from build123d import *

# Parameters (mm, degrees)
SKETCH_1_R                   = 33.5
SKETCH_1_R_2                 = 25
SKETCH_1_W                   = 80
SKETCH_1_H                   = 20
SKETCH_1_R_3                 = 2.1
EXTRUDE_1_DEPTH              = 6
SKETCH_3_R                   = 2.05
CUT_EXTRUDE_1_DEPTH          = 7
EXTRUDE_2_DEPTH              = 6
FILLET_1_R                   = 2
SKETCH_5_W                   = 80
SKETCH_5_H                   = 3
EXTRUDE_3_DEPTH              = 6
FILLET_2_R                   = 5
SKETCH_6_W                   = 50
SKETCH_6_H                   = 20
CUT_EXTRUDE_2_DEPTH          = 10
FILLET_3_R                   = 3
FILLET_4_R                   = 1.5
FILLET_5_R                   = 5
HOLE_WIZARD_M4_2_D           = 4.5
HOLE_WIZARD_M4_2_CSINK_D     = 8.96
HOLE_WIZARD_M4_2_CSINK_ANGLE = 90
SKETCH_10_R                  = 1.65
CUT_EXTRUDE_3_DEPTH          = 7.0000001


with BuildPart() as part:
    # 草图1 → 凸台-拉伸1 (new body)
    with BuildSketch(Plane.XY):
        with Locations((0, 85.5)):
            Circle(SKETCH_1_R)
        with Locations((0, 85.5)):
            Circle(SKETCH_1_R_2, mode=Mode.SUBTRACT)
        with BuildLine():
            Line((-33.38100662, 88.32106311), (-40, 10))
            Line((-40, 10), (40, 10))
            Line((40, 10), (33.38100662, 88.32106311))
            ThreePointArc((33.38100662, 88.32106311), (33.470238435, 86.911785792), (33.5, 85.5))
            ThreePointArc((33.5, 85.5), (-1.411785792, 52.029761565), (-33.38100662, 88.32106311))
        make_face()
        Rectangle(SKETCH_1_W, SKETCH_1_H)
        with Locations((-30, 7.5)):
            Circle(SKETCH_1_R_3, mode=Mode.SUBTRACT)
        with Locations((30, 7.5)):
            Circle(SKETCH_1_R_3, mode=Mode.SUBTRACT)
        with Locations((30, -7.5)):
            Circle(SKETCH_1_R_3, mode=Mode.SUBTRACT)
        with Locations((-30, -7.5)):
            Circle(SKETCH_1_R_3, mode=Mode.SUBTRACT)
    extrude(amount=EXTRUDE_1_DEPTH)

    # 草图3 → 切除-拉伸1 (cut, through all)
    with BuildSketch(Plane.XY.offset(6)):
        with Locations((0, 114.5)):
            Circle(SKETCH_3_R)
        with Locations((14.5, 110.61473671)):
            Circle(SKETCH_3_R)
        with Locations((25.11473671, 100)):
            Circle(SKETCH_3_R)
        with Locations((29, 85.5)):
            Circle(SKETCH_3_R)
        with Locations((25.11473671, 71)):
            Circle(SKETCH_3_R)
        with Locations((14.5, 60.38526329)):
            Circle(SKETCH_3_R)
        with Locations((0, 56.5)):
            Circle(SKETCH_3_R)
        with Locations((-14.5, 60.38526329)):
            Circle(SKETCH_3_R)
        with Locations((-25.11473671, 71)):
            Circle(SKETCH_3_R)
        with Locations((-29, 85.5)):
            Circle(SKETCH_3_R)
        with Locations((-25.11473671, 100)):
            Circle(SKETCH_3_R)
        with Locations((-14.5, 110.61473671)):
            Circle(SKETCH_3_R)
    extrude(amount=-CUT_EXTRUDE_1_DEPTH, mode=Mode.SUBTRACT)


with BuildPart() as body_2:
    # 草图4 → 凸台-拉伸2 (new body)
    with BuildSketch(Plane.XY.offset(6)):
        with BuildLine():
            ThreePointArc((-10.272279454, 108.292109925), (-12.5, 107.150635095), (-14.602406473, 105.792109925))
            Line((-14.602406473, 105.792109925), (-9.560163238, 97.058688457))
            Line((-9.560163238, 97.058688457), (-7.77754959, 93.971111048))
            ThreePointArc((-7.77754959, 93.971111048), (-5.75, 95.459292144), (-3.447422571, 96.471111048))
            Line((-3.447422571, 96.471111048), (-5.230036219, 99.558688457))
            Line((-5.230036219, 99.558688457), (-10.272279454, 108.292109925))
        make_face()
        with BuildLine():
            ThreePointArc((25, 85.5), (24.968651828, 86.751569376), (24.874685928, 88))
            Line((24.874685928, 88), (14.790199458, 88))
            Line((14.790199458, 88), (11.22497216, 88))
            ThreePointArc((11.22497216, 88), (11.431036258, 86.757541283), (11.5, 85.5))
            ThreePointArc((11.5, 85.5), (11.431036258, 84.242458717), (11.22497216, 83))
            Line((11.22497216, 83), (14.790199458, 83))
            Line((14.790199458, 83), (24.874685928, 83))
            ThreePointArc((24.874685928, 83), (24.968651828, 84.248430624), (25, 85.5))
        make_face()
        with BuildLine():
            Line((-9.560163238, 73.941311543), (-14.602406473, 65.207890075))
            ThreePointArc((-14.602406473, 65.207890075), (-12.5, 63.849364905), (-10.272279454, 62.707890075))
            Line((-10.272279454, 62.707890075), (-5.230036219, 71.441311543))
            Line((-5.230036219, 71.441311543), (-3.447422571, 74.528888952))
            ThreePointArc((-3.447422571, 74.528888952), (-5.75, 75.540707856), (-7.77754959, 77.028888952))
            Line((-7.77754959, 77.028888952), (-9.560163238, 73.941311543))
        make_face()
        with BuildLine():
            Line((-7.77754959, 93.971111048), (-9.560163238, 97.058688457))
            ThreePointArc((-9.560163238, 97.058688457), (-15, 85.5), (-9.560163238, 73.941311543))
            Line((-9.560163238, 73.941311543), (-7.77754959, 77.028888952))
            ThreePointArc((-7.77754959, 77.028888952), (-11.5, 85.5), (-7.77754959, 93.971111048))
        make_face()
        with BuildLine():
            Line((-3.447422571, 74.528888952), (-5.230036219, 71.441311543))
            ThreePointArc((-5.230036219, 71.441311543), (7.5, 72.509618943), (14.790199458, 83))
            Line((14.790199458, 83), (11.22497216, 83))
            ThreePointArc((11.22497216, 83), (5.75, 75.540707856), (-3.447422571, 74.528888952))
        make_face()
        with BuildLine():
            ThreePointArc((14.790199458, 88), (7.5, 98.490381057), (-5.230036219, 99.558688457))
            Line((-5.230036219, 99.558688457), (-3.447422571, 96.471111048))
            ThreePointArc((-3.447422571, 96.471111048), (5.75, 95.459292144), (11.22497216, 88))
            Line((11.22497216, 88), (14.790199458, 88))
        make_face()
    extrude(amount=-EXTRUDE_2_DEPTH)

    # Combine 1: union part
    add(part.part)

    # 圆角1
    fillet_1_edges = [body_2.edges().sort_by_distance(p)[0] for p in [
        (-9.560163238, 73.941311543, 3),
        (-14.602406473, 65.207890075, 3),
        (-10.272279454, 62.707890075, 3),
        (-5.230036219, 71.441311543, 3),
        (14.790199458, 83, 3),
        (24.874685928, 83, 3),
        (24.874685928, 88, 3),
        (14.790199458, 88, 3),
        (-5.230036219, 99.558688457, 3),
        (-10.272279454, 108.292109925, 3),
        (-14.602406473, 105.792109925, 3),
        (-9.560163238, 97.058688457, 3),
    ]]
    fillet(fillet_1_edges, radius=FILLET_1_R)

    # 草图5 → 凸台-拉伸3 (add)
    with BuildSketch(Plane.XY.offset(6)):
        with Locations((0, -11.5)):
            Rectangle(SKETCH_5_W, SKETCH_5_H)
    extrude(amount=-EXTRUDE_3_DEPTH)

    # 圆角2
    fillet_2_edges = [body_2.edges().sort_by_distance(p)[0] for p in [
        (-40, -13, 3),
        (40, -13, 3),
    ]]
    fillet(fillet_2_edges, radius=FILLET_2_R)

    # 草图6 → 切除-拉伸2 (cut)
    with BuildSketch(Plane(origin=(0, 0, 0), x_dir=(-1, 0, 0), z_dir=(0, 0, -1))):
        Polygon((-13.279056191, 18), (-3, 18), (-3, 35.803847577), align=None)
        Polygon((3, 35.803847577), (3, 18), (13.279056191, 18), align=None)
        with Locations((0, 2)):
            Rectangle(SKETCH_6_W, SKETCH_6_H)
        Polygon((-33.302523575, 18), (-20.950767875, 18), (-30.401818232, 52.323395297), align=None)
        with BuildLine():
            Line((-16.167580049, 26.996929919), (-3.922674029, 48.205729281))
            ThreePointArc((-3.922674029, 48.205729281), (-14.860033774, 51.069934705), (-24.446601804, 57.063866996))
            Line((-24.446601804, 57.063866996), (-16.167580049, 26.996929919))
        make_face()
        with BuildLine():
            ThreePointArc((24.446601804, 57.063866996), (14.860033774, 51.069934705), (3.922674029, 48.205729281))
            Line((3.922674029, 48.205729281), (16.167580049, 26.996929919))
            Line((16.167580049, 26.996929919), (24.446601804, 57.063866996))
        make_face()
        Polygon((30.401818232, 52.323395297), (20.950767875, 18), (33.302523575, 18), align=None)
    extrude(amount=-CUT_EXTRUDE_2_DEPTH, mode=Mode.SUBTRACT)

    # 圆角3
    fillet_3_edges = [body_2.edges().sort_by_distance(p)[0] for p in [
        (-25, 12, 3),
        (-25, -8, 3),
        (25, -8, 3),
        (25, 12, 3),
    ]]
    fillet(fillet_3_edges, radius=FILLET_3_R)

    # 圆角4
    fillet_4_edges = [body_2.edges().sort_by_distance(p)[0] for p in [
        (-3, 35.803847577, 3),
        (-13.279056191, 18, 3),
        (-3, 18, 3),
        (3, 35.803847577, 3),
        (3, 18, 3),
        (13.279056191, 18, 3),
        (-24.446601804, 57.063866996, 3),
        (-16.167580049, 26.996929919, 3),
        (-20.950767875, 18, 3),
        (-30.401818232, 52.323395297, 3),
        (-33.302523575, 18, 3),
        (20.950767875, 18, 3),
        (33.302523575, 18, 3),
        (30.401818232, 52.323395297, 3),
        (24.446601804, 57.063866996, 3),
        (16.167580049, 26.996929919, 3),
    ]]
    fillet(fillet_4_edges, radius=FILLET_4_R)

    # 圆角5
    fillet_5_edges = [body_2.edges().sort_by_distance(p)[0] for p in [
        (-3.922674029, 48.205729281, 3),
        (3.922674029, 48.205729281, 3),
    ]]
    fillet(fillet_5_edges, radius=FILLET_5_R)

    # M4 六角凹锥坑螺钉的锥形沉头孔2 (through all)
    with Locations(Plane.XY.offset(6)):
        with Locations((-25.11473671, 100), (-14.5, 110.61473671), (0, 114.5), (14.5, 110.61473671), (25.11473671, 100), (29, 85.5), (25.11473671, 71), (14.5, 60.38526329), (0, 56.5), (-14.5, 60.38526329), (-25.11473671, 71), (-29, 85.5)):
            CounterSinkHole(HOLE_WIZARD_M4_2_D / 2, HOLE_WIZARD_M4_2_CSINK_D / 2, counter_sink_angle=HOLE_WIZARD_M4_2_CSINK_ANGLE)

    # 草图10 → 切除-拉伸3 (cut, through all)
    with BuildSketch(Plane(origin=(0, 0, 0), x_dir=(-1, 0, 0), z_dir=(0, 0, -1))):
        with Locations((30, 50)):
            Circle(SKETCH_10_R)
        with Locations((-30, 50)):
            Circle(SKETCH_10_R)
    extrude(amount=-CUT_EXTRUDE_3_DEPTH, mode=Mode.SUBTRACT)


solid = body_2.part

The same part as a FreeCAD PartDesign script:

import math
import FreeCAD as App
import Part
import Sketcher
Q = App.Units.Quantity


def edges_at(feature, points):
    """Names of the edges that pass closest to the given points."""
    edges = feature.Shape.Edges
    near = lambda p: min(range(len(edges)), key=lambda i: edges[i].distToShape(Part.Vertex(*p))[0])
    return sorted({f"Edge{near(p) + 1}" for p in points})

doc = App.newDocument("Part")
body = doc.addObject("PartDesign::Body", "Body")

# Sketch on XY plane
sketch1 = body.newObject("Sketcher::SketchObject", "Sketch")
sketch1.AttachmentSupport = (doc.getObject("XY_Plane"), [""])
sketch1.MapMode = "FlatFace"
sketch1.addGeometry([
    Part.ArcOfCircle(Part.Circle(App.Vector(0, 85.5, 0), App.Vector(0, 0, 1), 33.5), math.radians(5), math.radians(175)),  # 0
    Part.LineSegment(App.Vector(-33.4, 88.3, 0), App.Vector(-40, 10, 0)),  # 1
    Part.LineSegment(App.Vector(-40, 10, 0), App.Vector(-40, -10, 0)),  # 2
    Part.LineSegment(App.Vector(-40, -10, 0), App.Vector(40, -10, 0)),  # 3
    Part.LineSegment(App.Vector(40, -10, 0), App.Vector(40, 10, 0)),  # 4
    Part.LineSegment(App.Vector(40, 10, 0), App.Vector(33.4, 88.3, 0)),  # 5
    Part.Circle(App.Vector(-30, -7.5, 0), App.Vector(0, 0, 1), 2.1),  # 6
    Part.Circle(App.Vector(-30, 7.5, 0), App.Vector(0, 0, 1), 2.1),  # 7
    Part.Circle(App.Vector(30, -7.5, 0), App.Vector(0, 0, 1), 2.1),  # 8
    Part.Circle(App.Vector(30, 7.5, 0), App.Vector(0, 0, 1), 2.1),  # 9
    Part.Circle(App.Vector(0, 85.5, 0), App.Vector(0, 0, 1), 25),  # 10
], False)
sketch1.addConstraint([
    Sketcher.Constraint("Tangent", 0, 2, 1, 1),
    Sketcher.Constraint("Coincident", 1, 2, 2, 1),
    Sketcher.Constraint("Coincident", 2, 2, 3, 1),
    Sketcher.Constraint("Coincident", 3, 2, 4, 1),
    Sketcher.Constraint("Coincident", 4, 2, 5, 1),
    Sketcher.Constraint("Tangent", 5, 2, 0, 1),
    Sketcher.Constraint("Vertical", 2),
    Sketcher.Constraint("Horizontal", 3),
    Sketcher.Constraint("Vertical", 4),
    Sketcher.Constraint("Coincident", 10, 3, 0, 3),
    Sketcher.Constraint("Equal", 6, 7),
    Sketcher.Constraint("Equal", 7, 8),
    Sketcher.Constraint("Equal", 8, 9),
    Sketcher.Constraint("Symmetric", 7, 3, 8, 3, -1, 1),
    Sketcher.Constraint("Symmetric", 6, 3, 9, 3, -1, 1),
    Sketcher.Constraint("Symmetric", 1, 2, 3, 2, -1, 1),
    Sketcher.Constraint("Symmetric", 6, 3, 8, 3, -2),
    Sketcher.Constraint("PointOnObject", 0, 3, -2),
    Sketcher.Constraint("Horizontal", 1, 2, 4, 2),
    Sketcher.Constraint("Diameter", 10, 50.0),
    Sketcher.Constraint("Diameter", 6, 4.2),
    Sketcher.Constraint("Radius", 0, 33.5),
    Sketcher.Constraint("DistanceX", 3, 1, 3, 2, 80.0),
    Sketcher.Constraint("DistanceY", 2, 2, 2, 1, 20.0),
    Sketcher.Constraint("DistanceX", 6, 3, -1, 1, 30.0),
    Sketcher.Constraint("DistanceY", 6, 3, 0, 3, 93.0),
    Sketcher.Constraint("DistanceY", 6, 3, 7, 3, 15.0),
])
pad1 = body.newObject("PartDesign::Pad", "Pad")
pad1.Profile = sketch1
pad1.Length = 6

# Sketch on XY plane
sketch2 = body.newObject("Sketcher::SketchObject", "Sketch001")
sketch2.AttachmentSupport = (doc.getObject("XY_Plane"), [""])
sketch2.MapMode = "FlatFace"
sketch2.AttachmentOffset = App.Placement(App.Vector(0, 0, 6), App.Rotation())
sketch2.addGeometry([
    Part.Circle(App.Vector(0, 114.5, 0), App.Vector(0, 0, 1), 2),  # 0
    Part.Circle(App.Vector(14.5, 110.6, 0), App.Vector(0, 0, 1), 2),  # 1
    Part.Circle(App.Vector(25.1, 100, 0), App.Vector(0, 0, 1), 2),  # 2
    Part.Circle(App.Vector(29, 85.5, 0), App.Vector(0, 0, 1), 2),  # 3
    Part.Circle(App.Vector(25.1, 71, 0), App.Vector(0, 0, 1), 2),  # 4
    Part.Circle(App.Vector(14.5, 60.4, 0), App.Vector(0, 0, 1), 2),  # 5
    Part.Circle(App.Vector(0, 56.5, 0), App.Vector(0, 0, 1), 2),  # 6
    Part.Circle(App.Vector(-14.5, 60.4, 0), App.Vector(0, 0, 1), 2),  # 7
    Part.Circle(App.Vector(-25.1, 71, 0), App.Vector(0, 0, 1), 2),  # 8
    Part.Circle(App.Vector(-29, 85.5, 0), App.Vector(0, 0, 1), 2),  # 9
    Part.Circle(App.Vector(-25.1, 100, 0), App.Vector(0, 0, 1), 2),  # 10
    Part.Circle(App.Vector(-14.5, 110.6, 0), App.Vector(0, 0, 1), 2),  # 11
], False)
sketch2.addConstraint([
    Sketcher.Constraint("Equal", 0, 1),
    Sketcher.Constraint("Equal", 1, 2),
    Sketcher.Constraint("Equal", 2, 3),
    Sketcher.Constraint("Equal", 3, 4),
    Sketcher.Constraint("Equal", 4, 5),
    Sketcher.Constraint("Equal", 5, 6),
    Sketcher.Constraint("Equal", 6, 7),
    Sketcher.Constraint("Equal", 7, 8),
    Sketcher.Constraint("Equal", 8, 9),
    Sketcher.Constraint("Equal", 9, 10),
    Sketcher.Constraint("Equal", 10, 11),
    Sketcher.Constraint("Symmetric", 5, 3, 7, 3, -2),
    Sketcher.Constraint("Symmetric", 4, 3, 8, 3, -2),
    Sketcher.Constraint("Symmetric", 3, 3, 9, 3, -2),
    Sketcher.Constraint("Symmetric", 2, 3, 10, 3, -2),
    Sketcher.Constraint("Symmetric", 1, 3, 11, 3, -2),
    Sketcher.Constraint("PointOnObject", 0, 3, -2),
    Sketcher.Constraint("PointOnObject", 6, 3, -2),
    Sketcher.Constraint("Vertical", 2, 3, 4, 3),
    Sketcher.Constraint("Vertical", 1, 3, 5, 3),
    Sketcher.Constraint("Diameter", 0, 4.1),
    Sketcher.Constraint("DistanceY", -1, 1, 2, 3, 100.0),
    Sketcher.Constraint("DistanceX", -1, 1, 3, 3, 29.0),
    Sketcher.Constraint("DistanceY", -1, 1, 4, 3, 71.0),
    Sketcher.Constraint("DistanceY", 3, 3, 0, 3, 29.0),
    Sketcher.Constraint("DistanceY", 6, 3, 3, 3, 29.0),
    Sketcher.Constraint("DistanceX", 7, 3, 5, 3, 29.0),
    Sketcher.Constraint("DistanceY", -1, 1, 0, 3, 114.5),
    Sketcher.Constraint("DistanceY", -1, 1, 1, 3, 110.614737),
    Sketcher.Constraint("DistanceX", -1, 1, 2, 3, 25.114737),
    Sketcher.Constraint("DistanceY", -1, 1, 5, 3, 60.385263),
])
pocket1 = body.newObject("PartDesign::Pocket", "Pocket")
pocket1.Profile = sketch2
pocket1.Type = "ThroughAll"
body2 = doc.addObject("PartDesign::Body", "Body001")

# Sketch on XY plane
sketch3 = body2.newObject("Sketcher::SketchObject", "Sketch002")
sketch3.AttachmentSupport = (doc.getObject("XY_Plane001"), [""])
sketch3.MapMode = "FlatFace"
sketch3.AttachmentOffset = App.Placement(App.Vector(0, 0, 6), App.Rotation())
sketch3.addGeometry([
    Part.ArcOfCircle(Part.Circle(App.Vector(0, 85.5, 0), App.Vector(0, 0, 1), 25), math.radians(114.26), math.radians(125.74)),  # 0
    Part.LineSegment(App.Vector(-14.6, 105.8, 0), App.Vector(-9.6, 97.1, 0)),  # 1
    Part.ArcOfCircle(Part.Circle(App.Vector(0, 85.5, 0), App.Vector(0, 0, 1), 15), math.radians(130), math.radians(230)),  # 2
    Part.LineSegment(App.Vector(-9.6, 73.9, 0), App.Vector(-14.6, 65.2, 0)),  # 3
    Part.ArcOfCircle(Part.Circle(App.Vector(0, 85.5, 0), App.Vector(0, 0, 1), 25), math.radians(-125.74), math.radians(-114.26)),  # 4
    Part.LineSegment(App.Vector(-10.3, 62.7, 0), App.Vector(-5.2, 71.4, 0)),  # 5
    Part.ArcOfCircle(Part.Circle(App.Vector(0, 85.5, 0), App.Vector(0, 0, 1), 15), math.radians(-110), math.radians(-10)),  # 6
    Part.LineSegment(App.Vector(14.8, 83, 0), App.Vector(24.9, 83, 0)),  # 7
    Part.ArcOfCircle(Part.Circle(App.Vector(0, 85.5, 0), App.Vector(0, 0, 1), 25), math.radians(-5.74), math.radians(0)),  # 8
    Part.ArcOfCircle(Part.Circle(App.Vector(0, 85.5, 0), App.Vector(0, 0, 1), 25), math.radians(0), math.radians(5.74)),  # 9
    Part.LineSegment(App.Vector(24.9, 88, 0), App.Vector(14.8, 88, 0)),  # 10
    Part.ArcOfCircle(Part.Circle(App.Vector(0, 85.5, 0), App.Vector(0, 0, 1), 15), math.radians(10), math.radians(110)),  # 11
    Part.LineSegment(App.Vector(-5.2, 99.6, 0), App.Vector(-10.3, 108.3, 0)),  # 12
    Part.ArcOfCircle(Part.Circle(App.Vector(0, 85.5, 0), App.Vector(0, 0, 1), 11.5), math.radians(0), math.radians(12.56)),  # 13
    Part.ArcOfCircle(Part.Circle(App.Vector(0, 85.5, 0), App.Vector(0, 0, 1), 11.5), math.radians(-12.56), math.radians(0)),  # 14
    Part.ArcOfCircle(Part.Circle(App.Vector(0, 85.5, 0), App.Vector(0, 0, 1), 11.5), math.radians(-107), math.radians(-13)),  # 15
    Part.ArcOfCircle(Part.Circle(App.Vector(0, 85.5, 0), App.Vector(0, 0, 1), 11.5), math.radians(-133), math.radians(-107)),  # 16
    Part.ArcOfCircle(Part.Circle(App.Vector(0, 85.5, 0), App.Vector(0, 0, 1), 11.5), math.radians(133), math.radians(227)),  # 17
    Part.ArcOfCircle(Part.Circle(App.Vector(0, 85.5, 0), App.Vector(0, 0, 1), 11.5), math.radians(107), math.radians(133)),  # 18
    Part.ArcOfCircle(Part.Circle(App.Vector(0, 85.5, 0), App.Vector(0, 0, 1), 11.5), math.radians(13), math.radians(107)),  # 19
], False)
sketch3.addConstraint([
    Sketcher.Constraint("Coincident", 0, 2, 1, 1),
    Sketcher.Constraint("Coincident", 1, 2, 2, 1),
    Sketcher.Constraint("Coincident", 2, 2, 3, 1),
    Sketcher.Constraint("Coincident", 3, 2, 4, 1),
    Sketcher.Constraint("Coincident", 4, 2, 5, 1),
    Sketcher.Constraint("Coincident", 5, 2, 6, 1),
    Sketcher.Constraint("Coincident", 6, 2, 7, 1),
    Sketcher.Constraint("Coincident", 7, 2, 8, 1),
    Sketcher.Constraint("Tangent", 8, 2, 9, 1),
    Sketcher.Constraint("Coincident", 9, 2, 10, 1),
    Sketcher.Constraint("Coincident", 10, 2, 11, 1),
    Sketcher.Constraint("Coincident", 11, 2, 12, 1),
    Sketcher.Constraint("Coincident", 12, 2, 0, 1),
    Sketcher.Constraint("Tangent", 13, 1, 14, 2),
    Sketcher.Constraint("Tangent", 14, 1, 15, 2),
    Sketcher.Constraint("Tangent", 15, 1, 16, 2),
    Sketcher.Constraint("Tangent", 16, 1, 17, 2),
    Sketcher.Constraint("Tangent", 17, 1, 18, 2),
    Sketcher.Constraint("Tangent", 18, 1, 19, 2),
    Sketcher.Constraint("Tangent", 19, 1, 13, 2),
    Sketcher.Constraint("Horizontal", 7),
    Sketcher.Constraint("Horizontal", 10),
    Sketcher.Constraint("Coincident", 2, 3, 0, 3),
    Sketcher.Constraint("Coincident", 4, 3, 0, 3),
    Sketcher.Constraint("Coincident", 6, 3, 0, 3),
    Sketcher.Constraint("Coincident", 8, 3, 0, 3),
    Sketcher.Constraint("Coincident", 11, 3, 0, 3),
    Sketcher.Constraint("Coincident", 13, 3, 0, 3),
    Sketcher.Constraint("Coincident", 15, 3, 0, 3),
    Sketcher.Constraint("Coincident", 17, 3, 0, 3),
    Sketcher.Constraint("Equal", 0, 4),
    Sketcher.Constraint("Equal", 2, 6),
    Sketcher.Constraint("Equal", 4, 8),
    Sketcher.Constraint("Equal", 8, 9),
    Sketcher.Constraint("Equal", 6, 11),
    Sketcher.Constraint("PointOnObject", 0, 3, -2),
    Sketcher.Constraint("Parallel", 3, 5),
    Sketcher.Constraint("Parallel", 1, 12),
    Sketcher.Constraint("Horizontal", 19, 3, 8, 2),
    Sketcher.Constraint("Horizontal", 8, 2, 13, 1),
    Sketcher.Constraint("Horizontal", 7, 2, 14, 1),
    Sketcher.Constraint("Horizontal", 10, 2, 19, 1),
    Sketcher.Constraint("Vertical", 1, 2, 2, 2),
    Sketcher.Constraint("Vertical", 0, 2, 3, 2),
    Sketcher.Constraint("Vertical", 7, 2, 9, 2),
    Sketcher.Constraint("Vertical", 5, 2, 11, 2),
    Sketcher.Constraint("Vertical", 16, 1, 17, 1),
    Sketcher.Constraint("Vertical", 15, 1, 18, 1),
    Sketcher.Constraint("Equal", 3, 5),
    Sketcher.Constraint("Radius", 0, 25.0),
    Sketcher.Constraint("Radius", 2, 15.0),
    Sketcher.Constraint("Radius", 13, 11.5),
    Sketcher.Constraint("Angle", 1, Q("-60 deg")),
    Sketcher.Constraint("DistanceY", -1, 1, 6, 2, 83.0),
    Sketcher.Constraint("DistanceY", -1, 1, 9, 2, 88.0),
    Sketcher.Constraint("DistanceY", 4, 2, 3, 2, 2.5),
    Sketcher.Constraint("DistanceY", 15, 1, 16, 1, 2.5),
    Sketcher.Constraint("DistanceY", -1, 1, 15, 1, 74.528889),
])
pad2 = body2.newObject("PartDesign::Pad", "Pad001")
pad2.Profile = sketch3
pad2.Length = 6
pad2.Reversed = True
doc.recompute()

boolean = body2.newObject("PartDesign::Boolean", "Boolean")
boolean.Type = "Fuse"
boolean.addObjects([body])
doc.recompute()

fillet = body2.newObject("PartDesign::Fillet", "Fillet")
fillet.Base = (boolean, edges_at(boolean, [
    (-9.56, 73.941, 3),
    (-14.602, 65.208, 3),
    (-10.272, 62.708, 3),
    (-5.23, 71.441, 3),
    (14.79, 83, 3),
    (24.875, 83, 3),
    (24.875, 88, 3),
    (14.79, 88, 3),
    (-5.23, 99.559, 3),
    (-10.272, 108.292, 3),
    (-14.602, 105.792, 3),
    (-9.56, 97.059, 3),
]))
fillet.Radius = 2

# Sketch on XY plane
sketch4 = body2.newObject("Sketcher::SketchObject", "Sketch003")
sketch4.AttachmentSupport = (doc.getObject("XY_Plane001"), [""])
sketch4.MapMode = "FlatFace"
sketch4.AttachmentOffset = App.Placement(App.Vector(0, 0, 6), App.Rotation())
sketch4.addGeometry([
    Part.LineSegment(App.Vector(-40, -10, 0), App.Vector(-40, -13, 0)),
    Part.LineSegment(App.Vector(-40, -13, 0), App.Vector(40, -13, 0)),
    Part.LineSegment(App.Vector(40, -13, 0), App.Vector(40, -10, 0)),
    Part.LineSegment(App.Vector(40, -10, 0), App.Vector(-40, -10, 0)),
], False)
sketch4.addConstraint([
    Sketcher.Constraint("Coincident", 0, 2, 1, 1),
    Sketcher.Constraint("Coincident", 1, 2, 2, 1),
    Sketcher.Constraint("Coincident", 2, 2, 3, 1),
    Sketcher.Constraint("Coincident", 3, 2, 0, 1),
    Sketcher.Constraint("Vertical", 0),
    Sketcher.Constraint("Horizontal", 1),
    Sketcher.Constraint("Vertical", 2),
    Sketcher.Constraint("Horizontal", 3),
    Sketcher.Constraint("DistanceX", 1, 1, 1, 2, 80.0),
    Sketcher.Constraint("DistanceY", 0, 2, 0, 1, 3.0),
    Sketcher.Constraint("DistanceX", 0, 2, -1, 1, 40.0),
    Sketcher.Constraint("DistanceY", 0, 2, -1, 1, 13.0),
])
pad3 = body2.newObject("PartDesign::Pad", "Pad002")
pad3.Profile = sketch4
pad3.Length = 6
pad3.Reversed = True
doc.recompute()

fillet2 = body2.newObject("PartDesign::Fillet", "Fillet001")
fillet2.Base = (pad3, edges_at(pad3, [(-40, -13, 3), (40, -13, 3)]))
fillet2.Radius = 5

# Sketch on XY plane
sketch5 = body2.newObject("Sketcher::SketchObject", "Sketch004")
sketch5.AttachmentSupport = (doc.getObject("XY_Plane001"), [""])
sketch5.MapMode = "FlatFace"
sketch5.addGeometry([
    Part.LineSegment(App.Vector(13, 18, 0), App.Vector(3, 18, 0)),  # 0
    Part.LineSegment(App.Vector(3, 18, 0), App.Vector(3, 36, 0)),  # 1
    Part.LineSegment(App.Vector(3, 36, 0), App.Vector(13, 18, 0)),  # 2
    Part.LineSegment(App.Vector(-3, 36, 0), App.Vector(-3, 18, 0)),  # 3
    Part.LineSegment(App.Vector(-3, 18, 0), App.Vector(-13, 18, 0)),  # 4
    Part.LineSegment(App.Vector(-13, 18, 0), App.Vector(-3, 36, 0)),  # 5
    Part.LineSegment(App.Vector(25, 12, 0), App.Vector(25, -8, 0)),  # 6
    Part.LineSegment(App.Vector(25, -8, 0), App.Vector(-25, -8, 0)),  # 7
    Part.LineSegment(App.Vector(-25, -8, 0), App.Vector(-25, 12, 0)),  # 8
    Part.LineSegment(App.Vector(-25, 12, 0), App.Vector(25, 12, 0)),  # 9
    Part.LineSegment(App.Vector(33, 18, 0), App.Vector(21, 18, 0)),  # 10
    Part.LineSegment(App.Vector(21, 18, 0), App.Vector(30, 52, 0)),  # 11
    Part.LineSegment(App.Vector(30, 52, 0), App.Vector(33, 18, 0)),  # 12
    Part.LineSegment(App.Vector(16, 27, 0), App.Vector(4, 48, 0)),  # 13
    Part.ArcOfCircle(Part.Circle(App.Vector(0, 86, 0), App.Vector(0, 0, 1), 38), math.radians(-84), math.radians(-49)),  # 14
    Part.LineSegment(App.Vector(24, 57, 0), App.Vector(16, 27, 0)),  # 15
    Part.ArcOfCircle(Part.Circle(App.Vector(0, 86, 0), App.Vector(0, 0, 1), 38), math.radians(-131), math.radians(-96)),  # 16
    Part.LineSegment(App.Vector(-4, 48, 0), App.Vector(-16, 27, 0)),  # 17
    Part.LineSegment(App.Vector(-16, 27, 0), App.Vector(-24, 57, 0)),  # 18
    Part.LineSegment(App.Vector(-30, 52, 0), App.Vector(-21, 18, 0)),  # 19
    Part.LineSegment(App.Vector(-21, 18, 0), App.Vector(-33, 18, 0)),  # 20
    Part.LineSegment(App.Vector(-33, 18, 0), App.Vector(-30, 52, 0)),  # 21
], False)
sketch5.addConstraint([
    Sketcher.Constraint("Coincident", 0, 2, 1, 1),
    Sketcher.Constraint("Coincident", 1, 2, 2, 1),
    Sketcher.Constraint("Coincident", 2, 2, 0, 1),
    Sketcher.Constraint("Coincident", 3, 2, 4, 1),
    Sketcher.Constraint("Coincident", 4, 2, 5, 1),
    Sketcher.Constraint("Coincident", 5, 2, 3, 1),
    Sketcher.Constraint("Coincident", 6, 2, 7, 1),
    Sketcher.Constraint("Coincident", 7, 2, 8, 1),
    Sketcher.Constraint("Coincident", 8, 2, 9, 1),
    Sketcher.Constraint("Coincident", 9, 2, 6, 1),
    Sketcher.Constraint("Coincident", 10, 2, 11, 1),
    Sketcher.Constraint("Coincident", 11, 2, 12, 1),
    Sketcher.Constraint("Coincident", 12, 2, 10, 1),
    Sketcher.Constraint("Coincident", 13, 2, 14, 1),
    Sketcher.Constraint("Coincident", 14, 2, 15, 1),
    Sketcher.Constraint("Coincident", 15, 2, 13, 1),
    Sketcher.Constraint("Coincident", 16, 2, 17, 1),
    Sketcher.Constraint("Coincident", 17, 2, 18, 1),
    Sketcher.Constraint("Coincident", 18, 2, 16, 1),
    Sketcher.Constraint("Coincident", 19, 2, 20, 1),
    Sketcher.Constraint("Coincident", 20, 2, 21, 1),
    Sketcher.Constraint("Coincident", 21, 2, 19, 1),
    Sketcher.Constraint("Horizontal", 0),
    Sketcher.Constraint("Vertical", 1),
    Sketcher.Constraint("Vertical", 3),
    Sketcher.Constraint("Horizontal", 4),
    Sketcher.Constraint("Vertical", 6),
    Sketcher.Constraint("Horizontal", 7),
    Sketcher.Constraint("Vertical", 8),
    Sketcher.Constraint("Horizontal", 9),
    Sketcher.Constraint("Horizontal", 10),
    Sketcher.Constraint("Horizontal", 20),
    Sketcher.Constraint("Coincident", 16, 3, 14, 3),
    Sketcher.Constraint("Equal", 14, 16),
    Sketcher.Constraint("Symmetric", 0, 2, 3, 2, -2),
    Sketcher.Constraint("Symmetric", 13, 2, 16, 2, -2),
    Sketcher.Constraint("Symmetric", 15, 2, 17, 2, -2),
    Sketcher.Constraint("Symmetric", 10, 2, 19, 2, -2),
    Sketcher.Constraint("Symmetric", 11, 2, 21, 2, -2),
    Sketcher.Constraint("Parallel", 2, 13),
    Sketcher.Constraint("Parallel", 11, 15),
    Sketcher.Constraint("Parallel", 5, 17),
    Sketcher.Constraint("Parallel", 18, 19),
    Sketcher.Constraint("Horizontal", 1, 2, 5, 2),
    Sketcher.Constraint("Horizontal", 4, 2, 10, 2),
    Sketcher.Constraint("Equal", 10, 20),
    Sketcher.Constraint("Radius", 14, 37.5),
    Sketcher.Constraint("DistanceX", 7, 2, 7, 1, 50.0),
    Sketcher.Constraint("DistanceY", 6, 2, 6, 1, 20.0),
    Sketcher.Constraint("Angle", 2, Q("-60 deg")),
    Sketcher.Constraint("DistanceX", -1, 1, 0, 2, 3.0),
    Sketcher.Constraint("DistanceY", -1, 1, 0, 2, 18.0),
    Sketcher.Constraint("DistanceX", -1, 1, 6, 2, 25.0),
    Sketcher.Constraint("DistanceY", 6, 2, -1, 1, 8.0),
    Sketcher.Constraint("DistanceY", -1, 1, 14, 3, 85.5),
    Sketcher.Constraint("DistanceX", -1, 1, 14, 2, 24.446602),
    Sketcher.Constraint("DistanceY", 15, 2, 16, 2, 21.208799),
    Sketcher.Constraint("Distance", 12, 34.445748),
    Sketcher.Constraint("Distance", 15, 31.185941),
    Sketcher.Constraint("DistanceX", 0, 2, 0, 1, 10.279056),
    Sketcher.Constraint("DistanceX", 10, 2, 10, 1, 12.351756),
    Sketcher.Constraint("DistanceX", -1, 1, 11, 2, 30.401818),
])
pocket2 = body2.newObject("PartDesign::Pocket", "Pocket001")
pocket2.Profile = sketch5
pocket2.Length = 10
pocket2.Reversed = True
doc.recompute()

fillet3 = body2.newObject("PartDesign::Fillet", "Fillet002")
fillet3.Base = (pocket2, edges_at(pocket2, [
    (-25, 12, 3),
    (-25, -8, 3),
    (25, -8, 3),
    (25, 12, 3),
]))
fillet3.Radius = 3
doc.recompute()

fillet4 = body2.newObject("PartDesign::Fillet", "Fillet003")
fillet4.Base = (fillet3, edges_at(fillet3, [
    (-3, 35.804, 3),
    (-13.279, 18, 3),
    (-3, 18, 3),
    (3, 35.804, 3),
    (3, 18, 3),
    (13.279, 18, 3),
    (-24.447, 57.064, 3),
    (-16.168, 26.997, 3),
    (-20.951, 18, 3),
    (-30.402, 52.323, 3),
    (-33.303, 18, 3),
    (20.951, 18, 3),
    (33.303, 18, 3),
    (30.402, 52.323, 3),
    (24.447, 57.064, 3),
    (16.168, 26.997, 3),
]))
fillet4.Radius = 1.5
doc.recompute()

fillet5 = body2.newObject("PartDesign::Fillet", "Fillet004")
fillet5.Base = (fillet4, edges_at(fillet4, [(-3.923, 48.206, 3), (3.923, 48.206, 3)]))
fillet5.Radius = 5

# Sketch on XY plane
sketch6 = body2.newObject("Sketcher::SketchObject", "Sketch005")
sketch6.AttachmentSupport = (doc.getObject("XY_Plane001"), [""])
sketch6.MapMode = "FlatFace"
sketch6.AttachmentOffset = App.Placement(App.Vector(0, 0, 6), App.Rotation())
sketch6.addGeometry([
    Part.Circle(App.Vector(-25.1, 100, 0), App.Vector(0, 0, 1), 2.2),  # 0
    Part.Circle(App.Vector(-14.5, 110.6, 0), App.Vector(0, 0, 1), 2.2),  # 1
    Part.Circle(App.Vector(0, 114.5, 0), App.Vector(0, 0, 1), 2.2),  # 2
    Part.Circle(App.Vector(14.5, 110.6, 0), App.Vector(0, 0, 1), 2.2),  # 3
    Part.Circle(App.Vector(25.1, 100, 0), App.Vector(0, 0, 1), 2.2),  # 4
    Part.Circle(App.Vector(29, 85.5, 0), App.Vector(0, 0, 1), 2.2),  # 5
    Part.Circle(App.Vector(25.1, 71, 0), App.Vector(0, 0, 1), 2.2),  # 6
    Part.Circle(App.Vector(14.5, 60.4, 0), App.Vector(0, 0, 1), 2.2),  # 7
    Part.Circle(App.Vector(0, 56.5, 0), App.Vector(0, 0, 1), 2.2),  # 8
    Part.Circle(App.Vector(-14.5, 60.4, 0), App.Vector(0, 0, 1), 2.2),  # 9
    Part.Circle(App.Vector(-25.1, 71, 0), App.Vector(0, 0, 1), 2.2),  # 10
    Part.Circle(App.Vector(-29, 85.5, 0), App.Vector(0, 0, 1), 2.2),  # 11
], False)
sketch6.addConstraint([
    Sketcher.Constraint("Equal", 0, 1),
    Sketcher.Constraint("Equal", 1, 2),
    Sketcher.Constraint("Equal", 2, 3),
    Sketcher.Constraint("Equal", 3, 4),
    Sketcher.Constraint("Equal", 4, 5),
    Sketcher.Constraint("Equal", 5, 6),
    Sketcher.Constraint("Equal", 6, 7),
    Sketcher.Constraint("Equal", 7, 8),
    Sketcher.Constraint("Equal", 8, 9),
    Sketcher.Constraint("Equal", 9, 10),
    Sketcher.Constraint("Equal", 10, 11),
    Sketcher.Constraint("Symmetric", 1, 3, 3, 3, -2),
    Sketcher.Constraint("Symmetric", 0, 3, 4, 3, -2),
    Sketcher.Constraint("Symmetric", 7, 3, 9, 3, -2),
    Sketcher.Constraint("Symmetric", 6, 3, 10, 3, -2),
    Sketcher.Constraint("Symmetric", 5, 3, 11, 3, -2),
    Sketcher.Constraint("PointOnObject", 2, 3, -2),
    Sketcher.Constraint("PointOnObject", 8, 3, -2),
    Sketcher.Constraint("Vertical", 4, 3, 6, 3),
    Sketcher.Constraint("Vertical", 3, 3, 7, 3),
    Sketcher.Constraint("Diameter", 0, 4.5),
    Sketcher.Constraint("DistanceY", -1, 1, 0, 3, 100.0),
    Sketcher.Constraint("DistanceX", -1, 1, 5, 3, 29.0),
    Sketcher.Constraint("DistanceY", -1, 1, 6, 3, 71.0),
    Sketcher.Constraint("DistanceX", 1, 3, 3, 3, 29.0),
    Sketcher.Constraint("DistanceY", 5, 3, 2, 3, 29.0),
    Sketcher.Constraint("DistanceY", 8, 3, 5, 3, 29.0),
    Sketcher.Constraint("DistanceY", -1, 1, 2, 3, 114.5),
    Sketcher.Constraint("DistanceX", 0, 3, -1, 1, 25.114737),
    Sketcher.Constraint("DistanceY", -1, 1, 1, 3, 110.614737),
    Sketcher.Constraint("DistanceY", -1, 1, 7, 3, 60.385263),
])
doc.recompute()
hole = body2.newObject("PartDesign::Hole", "Hole")
hole.Profile = sketch6
hole.ThreadType = "None"
hole.Diameter = 4.5
hole.DepthType = "ThroughAll"
hole.HoleCutType = "Countersink"
hole.HoleCutDiameter = 8.96
hole.HoleCutCountersinkAngle = 90

# Sketch on XY plane
sketch7 = body2.newObject("Sketcher::SketchObject", "Sketch006")
sketch7.AttachmentSupport = (doc.getObject("XY_Plane001"), [""])
sketch7.MapMode = "FlatFace"
sketch7.addGeometry([
    Part.Circle(App.Vector(-30, 50, 0), App.Vector(0, 0, 1), 1.6),
    Part.Circle(App.Vector(30, 50, 0), App.Vector(0, 0, 1), 1.6),
], False)
sketch7.addConstraint([
    Sketcher.Constraint("Equal", 0, 1),
    Sketcher.Constraint("Symmetric", 0, 3, 1, 3, -2),
    Sketcher.Constraint("Diameter", 0, 3.3),
    Sketcher.Constraint("DistanceX", 0, 3, -1, 1, 30.0),
    Sketcher.Constraint("DistanceY", -1, 1, 0, 3, 50.0),
])
pocket3 = body2.newObject("PartDesign::Pocket", "Pocket002")
pocket3.Profile = sketch7
pocket3.Type = "ThroughAll"
pocket3.Reversed = True

doc.recompute()
